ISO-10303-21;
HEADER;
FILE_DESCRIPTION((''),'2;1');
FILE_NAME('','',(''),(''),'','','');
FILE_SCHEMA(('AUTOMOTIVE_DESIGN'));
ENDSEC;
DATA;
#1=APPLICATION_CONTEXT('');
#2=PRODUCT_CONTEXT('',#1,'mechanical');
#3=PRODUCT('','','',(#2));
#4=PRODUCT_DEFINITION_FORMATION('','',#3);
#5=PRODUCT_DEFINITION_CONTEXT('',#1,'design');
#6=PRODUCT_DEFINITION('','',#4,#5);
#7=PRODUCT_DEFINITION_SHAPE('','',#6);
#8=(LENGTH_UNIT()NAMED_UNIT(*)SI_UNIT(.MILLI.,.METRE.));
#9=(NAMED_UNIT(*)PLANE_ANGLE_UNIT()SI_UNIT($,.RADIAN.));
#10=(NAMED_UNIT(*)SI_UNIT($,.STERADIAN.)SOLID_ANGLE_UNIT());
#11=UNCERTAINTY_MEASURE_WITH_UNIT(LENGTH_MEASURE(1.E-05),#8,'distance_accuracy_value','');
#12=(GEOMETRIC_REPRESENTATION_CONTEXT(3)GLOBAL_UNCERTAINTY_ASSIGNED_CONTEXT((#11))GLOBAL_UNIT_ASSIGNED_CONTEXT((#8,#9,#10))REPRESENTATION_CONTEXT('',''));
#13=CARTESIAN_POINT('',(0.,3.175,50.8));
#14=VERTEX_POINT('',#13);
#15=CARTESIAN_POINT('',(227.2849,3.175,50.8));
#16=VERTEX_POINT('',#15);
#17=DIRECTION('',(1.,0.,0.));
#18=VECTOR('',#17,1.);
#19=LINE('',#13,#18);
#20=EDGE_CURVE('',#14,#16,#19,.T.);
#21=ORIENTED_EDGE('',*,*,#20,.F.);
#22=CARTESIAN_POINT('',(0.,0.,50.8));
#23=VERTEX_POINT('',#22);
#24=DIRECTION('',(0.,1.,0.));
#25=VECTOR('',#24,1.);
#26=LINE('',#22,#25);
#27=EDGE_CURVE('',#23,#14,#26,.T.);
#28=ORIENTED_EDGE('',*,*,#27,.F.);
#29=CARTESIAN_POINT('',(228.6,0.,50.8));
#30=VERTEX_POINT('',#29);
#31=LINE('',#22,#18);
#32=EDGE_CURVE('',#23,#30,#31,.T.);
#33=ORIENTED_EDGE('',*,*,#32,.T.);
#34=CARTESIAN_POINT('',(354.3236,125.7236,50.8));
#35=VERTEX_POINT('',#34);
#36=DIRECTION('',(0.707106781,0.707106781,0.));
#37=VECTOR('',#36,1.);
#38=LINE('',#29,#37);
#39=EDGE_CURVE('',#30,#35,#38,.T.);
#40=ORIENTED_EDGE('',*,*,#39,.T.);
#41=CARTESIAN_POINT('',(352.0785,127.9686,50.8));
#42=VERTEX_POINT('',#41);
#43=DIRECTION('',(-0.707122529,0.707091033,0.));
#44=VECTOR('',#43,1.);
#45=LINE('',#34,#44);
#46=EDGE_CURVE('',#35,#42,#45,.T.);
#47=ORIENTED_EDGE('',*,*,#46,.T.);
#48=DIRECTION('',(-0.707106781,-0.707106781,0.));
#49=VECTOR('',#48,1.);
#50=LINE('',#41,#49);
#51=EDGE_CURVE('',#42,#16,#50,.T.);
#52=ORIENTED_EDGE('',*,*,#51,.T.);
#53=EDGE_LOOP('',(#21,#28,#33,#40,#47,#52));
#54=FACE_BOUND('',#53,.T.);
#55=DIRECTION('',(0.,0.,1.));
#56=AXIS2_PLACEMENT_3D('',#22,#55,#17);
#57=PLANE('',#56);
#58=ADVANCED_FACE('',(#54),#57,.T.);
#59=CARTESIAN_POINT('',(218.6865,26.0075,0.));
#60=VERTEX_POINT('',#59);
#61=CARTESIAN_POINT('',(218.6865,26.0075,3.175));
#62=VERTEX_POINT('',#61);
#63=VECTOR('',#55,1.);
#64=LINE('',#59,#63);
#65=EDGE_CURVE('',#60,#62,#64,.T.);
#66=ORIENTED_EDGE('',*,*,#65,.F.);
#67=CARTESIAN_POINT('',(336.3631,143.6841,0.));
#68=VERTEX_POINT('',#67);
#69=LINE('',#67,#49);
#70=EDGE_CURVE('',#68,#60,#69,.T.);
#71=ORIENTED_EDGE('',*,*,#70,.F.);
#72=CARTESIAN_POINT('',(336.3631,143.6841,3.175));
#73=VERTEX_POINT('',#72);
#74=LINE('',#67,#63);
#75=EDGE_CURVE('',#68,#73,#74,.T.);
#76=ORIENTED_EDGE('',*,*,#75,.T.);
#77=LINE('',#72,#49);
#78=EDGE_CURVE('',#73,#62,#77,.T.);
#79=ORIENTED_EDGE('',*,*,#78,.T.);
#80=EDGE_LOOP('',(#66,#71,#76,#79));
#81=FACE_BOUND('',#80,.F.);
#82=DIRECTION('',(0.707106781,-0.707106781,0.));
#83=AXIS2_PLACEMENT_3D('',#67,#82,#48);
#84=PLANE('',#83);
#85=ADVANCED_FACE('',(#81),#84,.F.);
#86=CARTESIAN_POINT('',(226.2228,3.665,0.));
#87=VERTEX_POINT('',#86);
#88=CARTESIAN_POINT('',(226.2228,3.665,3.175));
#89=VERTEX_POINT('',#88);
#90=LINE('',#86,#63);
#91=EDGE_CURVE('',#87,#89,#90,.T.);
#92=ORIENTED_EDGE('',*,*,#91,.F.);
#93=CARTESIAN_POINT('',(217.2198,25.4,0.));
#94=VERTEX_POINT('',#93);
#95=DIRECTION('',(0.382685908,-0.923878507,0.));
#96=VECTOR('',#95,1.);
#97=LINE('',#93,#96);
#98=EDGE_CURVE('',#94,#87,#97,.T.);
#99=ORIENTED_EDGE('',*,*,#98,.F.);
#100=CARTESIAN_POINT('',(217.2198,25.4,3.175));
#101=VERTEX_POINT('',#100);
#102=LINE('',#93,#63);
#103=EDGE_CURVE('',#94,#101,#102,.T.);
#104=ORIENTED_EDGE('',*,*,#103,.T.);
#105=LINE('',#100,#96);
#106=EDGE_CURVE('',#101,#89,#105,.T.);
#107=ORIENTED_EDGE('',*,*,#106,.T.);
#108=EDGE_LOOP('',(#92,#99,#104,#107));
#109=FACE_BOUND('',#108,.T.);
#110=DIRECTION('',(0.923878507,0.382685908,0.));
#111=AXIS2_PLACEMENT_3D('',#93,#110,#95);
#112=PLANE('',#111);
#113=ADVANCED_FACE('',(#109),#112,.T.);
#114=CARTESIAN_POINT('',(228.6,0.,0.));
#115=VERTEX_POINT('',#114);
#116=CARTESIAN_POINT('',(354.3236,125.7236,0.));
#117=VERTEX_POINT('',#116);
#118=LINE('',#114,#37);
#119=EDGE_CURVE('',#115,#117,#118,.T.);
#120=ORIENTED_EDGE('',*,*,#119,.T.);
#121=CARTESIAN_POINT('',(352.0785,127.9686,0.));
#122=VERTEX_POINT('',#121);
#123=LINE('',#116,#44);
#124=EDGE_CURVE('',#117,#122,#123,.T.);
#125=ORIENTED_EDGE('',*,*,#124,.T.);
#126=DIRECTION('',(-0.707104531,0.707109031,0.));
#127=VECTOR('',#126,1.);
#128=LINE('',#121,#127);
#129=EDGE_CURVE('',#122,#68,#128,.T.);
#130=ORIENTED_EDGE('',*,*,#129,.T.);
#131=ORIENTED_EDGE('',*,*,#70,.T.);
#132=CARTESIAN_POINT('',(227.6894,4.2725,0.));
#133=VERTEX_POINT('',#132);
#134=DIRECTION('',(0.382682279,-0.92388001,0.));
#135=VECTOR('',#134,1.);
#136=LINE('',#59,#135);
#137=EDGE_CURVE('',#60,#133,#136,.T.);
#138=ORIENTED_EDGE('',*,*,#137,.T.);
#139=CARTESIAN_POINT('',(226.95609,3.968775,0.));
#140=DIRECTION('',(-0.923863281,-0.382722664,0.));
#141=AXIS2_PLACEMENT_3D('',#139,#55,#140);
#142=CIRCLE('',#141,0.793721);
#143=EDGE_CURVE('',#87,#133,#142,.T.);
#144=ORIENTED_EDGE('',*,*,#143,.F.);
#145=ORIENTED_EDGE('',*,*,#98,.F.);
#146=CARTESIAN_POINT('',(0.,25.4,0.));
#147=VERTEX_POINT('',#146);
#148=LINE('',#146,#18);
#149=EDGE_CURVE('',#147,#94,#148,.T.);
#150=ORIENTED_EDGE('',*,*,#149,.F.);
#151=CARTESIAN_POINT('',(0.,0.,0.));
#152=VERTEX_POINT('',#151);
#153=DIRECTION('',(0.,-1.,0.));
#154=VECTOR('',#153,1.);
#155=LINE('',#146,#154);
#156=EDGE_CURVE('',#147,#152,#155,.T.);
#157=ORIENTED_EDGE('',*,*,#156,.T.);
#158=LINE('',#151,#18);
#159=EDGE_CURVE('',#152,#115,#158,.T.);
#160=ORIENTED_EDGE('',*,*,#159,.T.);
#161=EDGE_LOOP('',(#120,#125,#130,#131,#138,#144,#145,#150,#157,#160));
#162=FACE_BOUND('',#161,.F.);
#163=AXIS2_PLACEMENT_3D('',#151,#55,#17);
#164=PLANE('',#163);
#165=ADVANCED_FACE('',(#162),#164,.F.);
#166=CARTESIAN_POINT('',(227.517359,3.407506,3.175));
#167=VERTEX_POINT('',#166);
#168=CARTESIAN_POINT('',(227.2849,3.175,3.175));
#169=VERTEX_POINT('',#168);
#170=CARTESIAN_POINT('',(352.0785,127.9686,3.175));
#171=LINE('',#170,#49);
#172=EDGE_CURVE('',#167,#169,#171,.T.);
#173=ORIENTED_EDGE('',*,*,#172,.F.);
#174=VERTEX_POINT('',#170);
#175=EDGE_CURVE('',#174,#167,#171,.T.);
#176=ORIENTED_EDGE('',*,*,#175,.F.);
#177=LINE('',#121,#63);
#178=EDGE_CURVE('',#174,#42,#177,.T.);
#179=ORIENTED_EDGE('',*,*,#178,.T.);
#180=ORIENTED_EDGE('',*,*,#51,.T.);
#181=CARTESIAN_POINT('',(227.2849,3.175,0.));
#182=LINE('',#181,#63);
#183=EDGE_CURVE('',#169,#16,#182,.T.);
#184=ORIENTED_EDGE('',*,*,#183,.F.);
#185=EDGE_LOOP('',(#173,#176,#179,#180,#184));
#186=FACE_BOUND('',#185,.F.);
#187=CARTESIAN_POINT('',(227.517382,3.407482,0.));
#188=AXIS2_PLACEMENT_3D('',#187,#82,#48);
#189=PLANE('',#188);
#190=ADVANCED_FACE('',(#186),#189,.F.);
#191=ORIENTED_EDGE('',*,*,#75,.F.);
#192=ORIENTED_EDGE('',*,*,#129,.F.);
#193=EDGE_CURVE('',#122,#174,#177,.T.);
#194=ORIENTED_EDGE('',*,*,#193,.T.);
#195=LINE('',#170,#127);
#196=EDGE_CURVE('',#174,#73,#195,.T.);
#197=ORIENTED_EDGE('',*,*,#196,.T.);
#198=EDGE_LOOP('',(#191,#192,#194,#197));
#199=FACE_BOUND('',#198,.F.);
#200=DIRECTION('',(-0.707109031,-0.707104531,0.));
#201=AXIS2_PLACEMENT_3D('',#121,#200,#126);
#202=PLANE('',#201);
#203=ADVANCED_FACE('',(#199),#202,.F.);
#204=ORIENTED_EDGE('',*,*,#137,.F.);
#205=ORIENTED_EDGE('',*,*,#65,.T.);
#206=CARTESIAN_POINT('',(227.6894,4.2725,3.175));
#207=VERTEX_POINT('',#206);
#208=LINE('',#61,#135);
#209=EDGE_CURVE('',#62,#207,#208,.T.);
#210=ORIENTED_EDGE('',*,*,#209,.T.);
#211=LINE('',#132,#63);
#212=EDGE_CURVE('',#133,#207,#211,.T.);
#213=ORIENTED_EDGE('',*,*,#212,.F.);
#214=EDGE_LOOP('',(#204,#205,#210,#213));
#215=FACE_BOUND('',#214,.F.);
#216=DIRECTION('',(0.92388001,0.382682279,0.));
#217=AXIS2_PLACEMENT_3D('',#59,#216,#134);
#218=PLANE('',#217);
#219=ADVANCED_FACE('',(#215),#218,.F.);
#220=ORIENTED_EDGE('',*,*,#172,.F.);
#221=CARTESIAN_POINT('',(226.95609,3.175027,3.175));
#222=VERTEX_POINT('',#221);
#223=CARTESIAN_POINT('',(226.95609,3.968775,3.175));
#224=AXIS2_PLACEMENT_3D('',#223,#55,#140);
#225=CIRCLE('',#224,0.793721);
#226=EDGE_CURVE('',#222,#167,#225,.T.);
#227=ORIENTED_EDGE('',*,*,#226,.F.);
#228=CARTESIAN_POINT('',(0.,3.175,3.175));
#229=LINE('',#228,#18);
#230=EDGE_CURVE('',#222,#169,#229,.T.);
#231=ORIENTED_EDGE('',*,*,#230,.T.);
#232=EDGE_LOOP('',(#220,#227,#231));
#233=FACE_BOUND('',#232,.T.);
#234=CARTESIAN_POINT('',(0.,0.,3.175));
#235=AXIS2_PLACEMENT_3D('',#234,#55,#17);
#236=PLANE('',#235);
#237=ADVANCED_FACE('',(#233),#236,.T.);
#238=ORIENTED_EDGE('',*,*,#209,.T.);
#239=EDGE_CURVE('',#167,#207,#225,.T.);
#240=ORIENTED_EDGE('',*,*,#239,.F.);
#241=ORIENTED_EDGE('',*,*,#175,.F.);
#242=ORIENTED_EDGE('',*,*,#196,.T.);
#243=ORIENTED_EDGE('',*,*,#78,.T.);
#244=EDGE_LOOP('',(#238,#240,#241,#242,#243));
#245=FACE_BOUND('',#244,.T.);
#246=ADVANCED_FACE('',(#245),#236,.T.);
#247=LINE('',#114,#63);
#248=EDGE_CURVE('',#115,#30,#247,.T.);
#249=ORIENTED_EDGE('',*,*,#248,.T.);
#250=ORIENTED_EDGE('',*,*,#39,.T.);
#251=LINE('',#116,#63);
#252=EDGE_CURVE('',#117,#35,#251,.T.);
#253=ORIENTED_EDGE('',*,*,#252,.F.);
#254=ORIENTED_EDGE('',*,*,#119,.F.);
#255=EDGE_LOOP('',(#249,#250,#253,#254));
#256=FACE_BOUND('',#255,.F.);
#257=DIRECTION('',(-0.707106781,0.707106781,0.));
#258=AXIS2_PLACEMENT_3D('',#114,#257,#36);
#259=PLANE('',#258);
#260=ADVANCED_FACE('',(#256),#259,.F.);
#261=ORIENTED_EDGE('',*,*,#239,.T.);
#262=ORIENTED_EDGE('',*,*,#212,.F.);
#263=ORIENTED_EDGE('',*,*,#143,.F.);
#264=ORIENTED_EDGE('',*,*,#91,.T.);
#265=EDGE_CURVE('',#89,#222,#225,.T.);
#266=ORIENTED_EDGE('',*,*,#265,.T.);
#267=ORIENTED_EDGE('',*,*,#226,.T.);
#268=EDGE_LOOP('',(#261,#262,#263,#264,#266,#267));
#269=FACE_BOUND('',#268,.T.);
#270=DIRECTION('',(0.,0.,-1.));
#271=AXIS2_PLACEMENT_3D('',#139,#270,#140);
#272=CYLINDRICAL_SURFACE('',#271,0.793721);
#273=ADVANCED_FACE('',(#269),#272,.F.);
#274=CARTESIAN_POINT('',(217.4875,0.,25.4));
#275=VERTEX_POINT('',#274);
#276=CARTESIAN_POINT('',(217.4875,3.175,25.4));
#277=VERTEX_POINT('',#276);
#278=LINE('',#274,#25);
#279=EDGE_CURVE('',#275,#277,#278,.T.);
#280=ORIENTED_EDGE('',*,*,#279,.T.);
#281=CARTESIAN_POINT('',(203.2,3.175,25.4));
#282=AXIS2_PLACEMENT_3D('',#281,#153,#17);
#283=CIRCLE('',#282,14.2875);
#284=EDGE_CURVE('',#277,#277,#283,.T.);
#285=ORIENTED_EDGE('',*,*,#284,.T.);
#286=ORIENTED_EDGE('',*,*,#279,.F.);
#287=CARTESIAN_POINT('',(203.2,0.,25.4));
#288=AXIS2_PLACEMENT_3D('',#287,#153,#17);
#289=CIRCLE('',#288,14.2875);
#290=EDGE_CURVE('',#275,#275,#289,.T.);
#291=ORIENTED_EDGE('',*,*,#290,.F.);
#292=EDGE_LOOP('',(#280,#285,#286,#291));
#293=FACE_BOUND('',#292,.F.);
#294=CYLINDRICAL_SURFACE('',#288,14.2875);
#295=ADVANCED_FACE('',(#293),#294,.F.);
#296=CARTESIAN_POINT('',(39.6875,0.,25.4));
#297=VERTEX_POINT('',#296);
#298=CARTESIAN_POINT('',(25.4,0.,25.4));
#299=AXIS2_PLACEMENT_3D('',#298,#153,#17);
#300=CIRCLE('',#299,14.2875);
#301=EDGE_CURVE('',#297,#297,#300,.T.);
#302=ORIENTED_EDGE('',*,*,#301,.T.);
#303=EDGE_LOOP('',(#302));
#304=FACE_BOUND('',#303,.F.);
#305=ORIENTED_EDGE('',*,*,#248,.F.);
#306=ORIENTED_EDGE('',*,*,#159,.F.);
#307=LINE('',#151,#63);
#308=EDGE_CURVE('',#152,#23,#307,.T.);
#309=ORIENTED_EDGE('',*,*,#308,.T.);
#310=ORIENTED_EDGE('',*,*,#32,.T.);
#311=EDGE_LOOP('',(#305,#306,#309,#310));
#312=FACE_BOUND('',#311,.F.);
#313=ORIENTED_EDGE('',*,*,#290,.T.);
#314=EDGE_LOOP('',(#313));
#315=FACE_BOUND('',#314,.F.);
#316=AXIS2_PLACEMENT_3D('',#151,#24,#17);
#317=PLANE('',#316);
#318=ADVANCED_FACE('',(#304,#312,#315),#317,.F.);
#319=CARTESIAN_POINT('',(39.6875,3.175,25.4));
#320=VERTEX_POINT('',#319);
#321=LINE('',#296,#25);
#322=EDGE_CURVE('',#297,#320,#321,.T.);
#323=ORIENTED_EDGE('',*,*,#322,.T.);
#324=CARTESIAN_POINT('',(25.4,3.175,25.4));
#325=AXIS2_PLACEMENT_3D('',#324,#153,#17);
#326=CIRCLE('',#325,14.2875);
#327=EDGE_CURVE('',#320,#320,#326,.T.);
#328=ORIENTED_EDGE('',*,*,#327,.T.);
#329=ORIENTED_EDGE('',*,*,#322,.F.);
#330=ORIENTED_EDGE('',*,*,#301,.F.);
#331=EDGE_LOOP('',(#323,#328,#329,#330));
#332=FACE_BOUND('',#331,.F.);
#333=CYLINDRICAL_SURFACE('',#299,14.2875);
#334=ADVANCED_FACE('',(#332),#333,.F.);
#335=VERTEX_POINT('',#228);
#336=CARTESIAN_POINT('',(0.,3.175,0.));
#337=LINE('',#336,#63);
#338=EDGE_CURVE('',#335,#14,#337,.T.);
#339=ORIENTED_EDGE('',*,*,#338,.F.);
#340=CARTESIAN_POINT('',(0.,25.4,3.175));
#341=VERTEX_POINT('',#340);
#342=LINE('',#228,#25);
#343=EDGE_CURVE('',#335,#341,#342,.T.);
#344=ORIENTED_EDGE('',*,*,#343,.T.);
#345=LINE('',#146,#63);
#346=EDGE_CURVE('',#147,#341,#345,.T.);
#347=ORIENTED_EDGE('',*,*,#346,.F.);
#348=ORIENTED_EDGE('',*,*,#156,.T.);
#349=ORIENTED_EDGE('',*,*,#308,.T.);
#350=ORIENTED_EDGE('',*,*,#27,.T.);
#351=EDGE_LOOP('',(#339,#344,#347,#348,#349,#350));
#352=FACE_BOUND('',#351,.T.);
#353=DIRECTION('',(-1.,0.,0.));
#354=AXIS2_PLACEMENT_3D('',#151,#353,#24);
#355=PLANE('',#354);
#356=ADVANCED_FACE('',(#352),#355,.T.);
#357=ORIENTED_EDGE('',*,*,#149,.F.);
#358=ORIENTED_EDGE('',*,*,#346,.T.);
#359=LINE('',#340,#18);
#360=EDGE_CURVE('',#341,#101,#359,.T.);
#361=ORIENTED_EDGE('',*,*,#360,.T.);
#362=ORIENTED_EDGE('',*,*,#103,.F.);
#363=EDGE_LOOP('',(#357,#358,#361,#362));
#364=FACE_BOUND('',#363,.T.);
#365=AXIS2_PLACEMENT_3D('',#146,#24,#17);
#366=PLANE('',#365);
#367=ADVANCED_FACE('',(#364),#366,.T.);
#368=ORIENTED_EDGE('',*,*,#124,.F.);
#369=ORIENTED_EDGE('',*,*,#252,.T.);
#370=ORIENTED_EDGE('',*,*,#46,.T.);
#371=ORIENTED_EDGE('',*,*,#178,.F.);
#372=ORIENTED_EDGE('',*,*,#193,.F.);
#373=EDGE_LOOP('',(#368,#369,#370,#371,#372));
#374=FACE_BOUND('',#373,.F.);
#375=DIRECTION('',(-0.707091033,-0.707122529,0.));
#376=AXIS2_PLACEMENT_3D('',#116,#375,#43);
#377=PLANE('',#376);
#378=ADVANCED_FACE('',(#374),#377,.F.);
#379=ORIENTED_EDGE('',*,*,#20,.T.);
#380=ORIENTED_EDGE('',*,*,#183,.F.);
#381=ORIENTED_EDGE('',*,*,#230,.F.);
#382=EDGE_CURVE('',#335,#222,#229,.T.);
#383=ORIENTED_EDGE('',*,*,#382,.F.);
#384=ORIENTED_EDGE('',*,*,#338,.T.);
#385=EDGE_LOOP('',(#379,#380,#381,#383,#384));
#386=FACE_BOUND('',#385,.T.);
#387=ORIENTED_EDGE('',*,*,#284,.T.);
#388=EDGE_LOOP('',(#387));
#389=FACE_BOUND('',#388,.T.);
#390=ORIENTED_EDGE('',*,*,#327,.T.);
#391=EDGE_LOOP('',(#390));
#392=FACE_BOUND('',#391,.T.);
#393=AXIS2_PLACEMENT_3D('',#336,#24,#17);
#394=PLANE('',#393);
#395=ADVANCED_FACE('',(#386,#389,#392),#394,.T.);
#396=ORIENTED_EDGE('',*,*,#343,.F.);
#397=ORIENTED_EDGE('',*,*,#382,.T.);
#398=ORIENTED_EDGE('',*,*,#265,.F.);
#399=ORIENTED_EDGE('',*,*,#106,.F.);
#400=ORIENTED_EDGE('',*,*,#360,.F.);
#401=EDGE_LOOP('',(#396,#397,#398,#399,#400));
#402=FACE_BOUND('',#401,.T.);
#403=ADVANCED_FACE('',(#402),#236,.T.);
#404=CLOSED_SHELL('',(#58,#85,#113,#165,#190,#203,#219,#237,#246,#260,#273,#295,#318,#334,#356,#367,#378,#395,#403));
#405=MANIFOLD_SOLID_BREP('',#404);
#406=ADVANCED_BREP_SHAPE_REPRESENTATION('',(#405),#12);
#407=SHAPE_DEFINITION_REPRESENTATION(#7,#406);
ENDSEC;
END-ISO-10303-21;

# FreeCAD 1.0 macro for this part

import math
import FreeCAD as App
import Part
import Sketcher
from FreeCAD import Vector
Q = App.Units.Quantity

doc = App.newDocument("Part")
body = doc.addObject("PartDesign::Body", "Body")
body.AllowCompound = True

sketch1 = doc.addObject("Sketcher::SketchObject", "Sketch")
body.addObject(sketch1)
sketch1.AttachmentSupport = (doc.XY_Plane, [""])
sketch1.MapMode = "FlatFace"
sketch1.addGeometry(Part.LineSegment(Vector(0, 25.4, 0), Vector(0, 3.175, 0)), False)
sketch1.addGeometry(Part.LineSegment(Vector(0, 3.175, 0), Vector(226.95609, 3.175, 0)), False)
sketch1.addGeometry(Part.ArcOfCircle(Part.Circle(Vector(226.9561, 3.9688, 0), Vector(0, 0, 1), 0.79374), math.radians(-157.496186), math.radians(-90.000747)), False)
sketch1.addGeometry(Part.LineSegment(Vector(226.2228, 3.665, 0), Vector(217.2198, 25.4, 0)), False)
sketch1.addGeometry(Part.LineSegment(Vector(217.2198, 25.4, 0), Vector(0, 25.4, 0)), False)
sketch1.addGeometry(Part.ArcOfCircle(Part.Circle(Vector(226.9561, 3.9688, 0), Vector(0, 0, 1), 0.79374), math.radians(-90.000747), math.radians(-45.001803)), False)
sketch1.addGeometry(Part.LineSegment(Vector(226.95609, 3.175, 0), Vector(227.2849, 3.175, 0)), False)
sketch1.addGeometry(Part.LineSegment(Vector(227.2849, 3.175, 0), Vector(227.517382, 3.407482, 0)), False)
sketch1.addGeometry(Part.LineSegment(Vector(227.517382, 3.407482, 0), Vector(352.0785, 127.9686, 0)), False)
sketch1.addGeometry(Part.LineSegment(Vector(352.0785, 127.9686, 0), Vector(336.3631, 143.6841, 0)), False)
sketch1.addGeometry(Part.LineSegment(Vector(336.3631, 143.6841, 0), Vector(218.6865, 26.0075, 0)), False)
sketch1.addGeometry(Part.LineSegment(Vector(218.6865, 26.0075, 0), Vector(227.6894, 4.2725, 0)), False)
sketch1.addGeometry(Part.ArcOfCircle(Part.Circle(Vector(226.9561, 3.9688, 0), Vector(0, 0, 1), 0.79374), math.radians(-45.001803), math.radians(22.497145)), False)
sketch1.addConstraint(Sketcher.Constraint("Coincident", 0, 2, 1, 1))
sketch1.addConstraint(Sketcher.Constraint("Tangent", 1, 2, 2, 2))
sketch1.addConstraint(Sketcher.Constraint("Tangent", 2, 1, 3, 1))
sketch1.addConstraint(Sketcher.Constraint("Coincident", 3, 2, 4, 1))
sketch1.addConstraint(Sketcher.Constraint("Coincident", 4, 2, 0, 1))
sketch1.addConstraint(Sketcher.Constraint("Tangent", 5, 1, 6, 1))
sketch1.addConstraint(Sketcher.Constraint("Coincident", 6, 2, 7, 1))
sketch1.addConstraint(Sketcher.Constraint("Tangent", 7, 2, 5, 2))
sketch1.addConstraint(Sketcher.Constraint("Coincident", 8, 2, 9, 1))
sketch1.addConstraint(Sketcher.Constraint("Coincident", 9, 2, 10, 1))
sketch1.addConstraint(Sketcher.Constraint("Coincident", 10, 2, 11, 1))
sketch1.addConstraint(Sketcher.Constraint("Tangent", 11, 2, 12, 2))
sketch1.addConstraint(Sketcher.Constraint("Tangent", 12, 1, 8, 1))
sketch1.addConstraint(Sketcher.Constraint("Vertical", 0))
sketch1.addConstraint(Sketcher.Constraint("Horizontal", 1))
sketch1.addConstraint(Sketcher.Constraint("Horizontal", 4))
sketch1.addConstraint(Sketcher.Constraint("Horizontal", 6))
sketch1.addConstraint(Sketcher.Constraint("Coincident", 5, 3, 2, 3))
sketch1.addConstraint(Sketcher.Constraint("Coincident", 12, 3, 2, 3))
sketch1.addConstraint(Sketcher.Constraint("Coincident", 12, 1, 7, 2))
sketch1.addConstraint(Sketcher.Constraint("Equal", 2, 5))
sketch1.addConstraint(Sketcher.Constraint("PointOnObject", 0, 2, -2))
sketch1.addConstraint(Sketcher.Constraint("Perpendicular", 8, 9))
sketch1.addConstraint(Sketcher.Constraint("Perpendicular", 9, 10))
sketch1.addConstraint(Sketcher.Constraint("Parallel", 3, 11))
sketch1.addConstraint(Sketcher.Constraint("Equal", 3, 11))
sketch1.addConstraint(Sketcher.Constraint("DistanceY", -1, 1, 3, 2, Q("1 in")))
sketch1.addConstraint(Sketcher.Constraint("Angle", 8, Q("45 deg")))
sketch1.addConstraint(Sketcher.Constraint("Radius", 2, Q("0.031248 in")))
sketch1.addConstraint(Sketcher.Constraint("DistanceY", -1, 1, 0, 2, Q("0.125 in")))
sketch1.addConstraint(Sketcher.Constraint("Angle", 3, Q("112.5002 deg")))
sketch1.addConstraint(Sketcher.Constraint("DistanceX", 1, 1, 1, 2, Q("226.956 mm")))
sketch1.addConstraint(Sketcher.Constraint("DistanceX", 3, 2, 8, 2, Q("5.3094 in")))
pad1 = doc.addObject("PartDesign::Pad", "Pad")
body.addObject(pad1)
pad1.Profile = sketch1
pad1.Length = Q("0.125 in")

sketch2 = doc.addObject("Sketcher::SketchObject", "Sketch001")
body.addObject(sketch2)
sketch2.AttachmentSupport = (doc.XY_Plane, [""])
sketch2.MapMode = "FlatFace"
sketch2.addGeometry(Part.LineSegment(Vector(0, 3.175, 0), Vector(0, 0, 0)), False)
sketch2.addGeometry(Part.LineSegment(Vector(0, 0, 0), Vector(228.6, 0, 0)), False)
sketch2.addGeometry(Part.LineSegment(Vector(228.6, 0, 0), Vector(354.3236, 125.7236, 0)), False)
sketch2.addGeometry(Part.LineSegment(Vector(354.3236, 125.7236, 0), Vector(352.0785, 127.9686, 0)), False)
sketch2.addGeometry(Part.LineSegment(Vector(352.0785, 127.9686, 0), Vector(227.2849, 3.175, 0)), False)
sketch2.addGeometry(Part.LineSegment(Vector(227.2849, 3.175, 0), Vector(0, 3.175, 0)), False)
sketch2.addConstraint(Sketcher.Constraint("Coincident", 0, 2, 1, 1))
sketch2.addConstraint(Sketcher.Constraint("Coincident", 1, 2, 2, 1))
sketch2.addConstraint(Sketcher.Constraint("Coincident", 2, 2, 3, 1))
sketch2.addConstraint(Sketcher.Constraint("Coincident", 3, 2, 4, 1))
sketch2.addConstraint(Sketcher.Constraint("Coincident", 4, 2, 5, 1))
sketch2.addConstraint(Sketcher.Constraint("Coincident", 5, 2, 0, 1))
sketch2.addConstraint(Sketcher.Constraint("Vertical", 0))
sketch2.addConstraint(Sketcher.Constraint("Horizontal", 1))
sketch2.addConstraint(Sketcher.Constraint("Horizontal", 5))
sketch2.addConstraint(Sketcher.Constraint("Coincident", 0, 2, -1, 1))
sketch2.addConstraint(Sketcher.Constraint("Perpendicular", 2, 3))
sketch2.addConstraint(Sketcher.Constraint("Perpendicular", 3, 4))
sketch2.addConstraint(Sketcher.Constraint("DistanceX", 1, 1, 1, 2, Q("9 in")))
sketch2.addConstraint(Sketcher.Constraint("Distance", 2, Q("7 in")))
sketch2.addConstraint(Sketcher.Constraint("Angle", 2, Q("45 deg")))
sketch2.addConstraint(Sketcher.Constraint("DistanceY", 0, 2, 0, 1, Q("0.125 in")))
sketch2.addConstraint(Sketcher.Constraint("Distance", 3, Q("0.125 in")))
pad2 = doc.addObject("PartDesign::Pad", "Pad001")
body.addObject(pad2)
pad2.Profile = sketch2
pad2.Length = Q("2 in")

sketch3 = doc.addObject("Sketcher::SketchObject", "Sketch002")
body.addObject(sketch3)
sketch3.AttachmentSupport = (doc.XZ_Plane, [""])
sketch3.MapMode = "FlatFace"
sketch3.addGeometry(Part.Circle(Vector(25.4, 25.4, 0), Vector(0, 0, 1), 14.2875), False)
sketch3.addGeometry(Part.Circle(Vector(203.2, 25.4, 0), Vector(0, 0, 1), 14.2875), False)
sketch3.addConstraint(Sketcher.Constraint("Equal", 0, 1))
sketch3.addConstraint(Sketcher.Constraint("Horizontal", 0, 3, 1, 3))
sketch3.addConstraint(Sketcher.Constraint("Diameter", 0, Q("1.125 in")))
sketch3.addConstraint(Sketcher.Constraint("DistanceX", -1, 1, 0, 3, Q("1 in")))
sketch3.addConstraint(Sketcher.Constraint("DistanceY", -1, 1, 0, 3, Q("1 in")))
sketch3.addConstraint(Sketcher.Constraint("DistanceX", -1, 1, 1, 3, Q("8 in")))
pocket1 = doc.addObject("PartDesign::Pocket", "Pocket")
body.addObject(pocket1)
pocket1.Profile = sketch3
pocket1.Type = "ThroughAll"

doc.recompute()
